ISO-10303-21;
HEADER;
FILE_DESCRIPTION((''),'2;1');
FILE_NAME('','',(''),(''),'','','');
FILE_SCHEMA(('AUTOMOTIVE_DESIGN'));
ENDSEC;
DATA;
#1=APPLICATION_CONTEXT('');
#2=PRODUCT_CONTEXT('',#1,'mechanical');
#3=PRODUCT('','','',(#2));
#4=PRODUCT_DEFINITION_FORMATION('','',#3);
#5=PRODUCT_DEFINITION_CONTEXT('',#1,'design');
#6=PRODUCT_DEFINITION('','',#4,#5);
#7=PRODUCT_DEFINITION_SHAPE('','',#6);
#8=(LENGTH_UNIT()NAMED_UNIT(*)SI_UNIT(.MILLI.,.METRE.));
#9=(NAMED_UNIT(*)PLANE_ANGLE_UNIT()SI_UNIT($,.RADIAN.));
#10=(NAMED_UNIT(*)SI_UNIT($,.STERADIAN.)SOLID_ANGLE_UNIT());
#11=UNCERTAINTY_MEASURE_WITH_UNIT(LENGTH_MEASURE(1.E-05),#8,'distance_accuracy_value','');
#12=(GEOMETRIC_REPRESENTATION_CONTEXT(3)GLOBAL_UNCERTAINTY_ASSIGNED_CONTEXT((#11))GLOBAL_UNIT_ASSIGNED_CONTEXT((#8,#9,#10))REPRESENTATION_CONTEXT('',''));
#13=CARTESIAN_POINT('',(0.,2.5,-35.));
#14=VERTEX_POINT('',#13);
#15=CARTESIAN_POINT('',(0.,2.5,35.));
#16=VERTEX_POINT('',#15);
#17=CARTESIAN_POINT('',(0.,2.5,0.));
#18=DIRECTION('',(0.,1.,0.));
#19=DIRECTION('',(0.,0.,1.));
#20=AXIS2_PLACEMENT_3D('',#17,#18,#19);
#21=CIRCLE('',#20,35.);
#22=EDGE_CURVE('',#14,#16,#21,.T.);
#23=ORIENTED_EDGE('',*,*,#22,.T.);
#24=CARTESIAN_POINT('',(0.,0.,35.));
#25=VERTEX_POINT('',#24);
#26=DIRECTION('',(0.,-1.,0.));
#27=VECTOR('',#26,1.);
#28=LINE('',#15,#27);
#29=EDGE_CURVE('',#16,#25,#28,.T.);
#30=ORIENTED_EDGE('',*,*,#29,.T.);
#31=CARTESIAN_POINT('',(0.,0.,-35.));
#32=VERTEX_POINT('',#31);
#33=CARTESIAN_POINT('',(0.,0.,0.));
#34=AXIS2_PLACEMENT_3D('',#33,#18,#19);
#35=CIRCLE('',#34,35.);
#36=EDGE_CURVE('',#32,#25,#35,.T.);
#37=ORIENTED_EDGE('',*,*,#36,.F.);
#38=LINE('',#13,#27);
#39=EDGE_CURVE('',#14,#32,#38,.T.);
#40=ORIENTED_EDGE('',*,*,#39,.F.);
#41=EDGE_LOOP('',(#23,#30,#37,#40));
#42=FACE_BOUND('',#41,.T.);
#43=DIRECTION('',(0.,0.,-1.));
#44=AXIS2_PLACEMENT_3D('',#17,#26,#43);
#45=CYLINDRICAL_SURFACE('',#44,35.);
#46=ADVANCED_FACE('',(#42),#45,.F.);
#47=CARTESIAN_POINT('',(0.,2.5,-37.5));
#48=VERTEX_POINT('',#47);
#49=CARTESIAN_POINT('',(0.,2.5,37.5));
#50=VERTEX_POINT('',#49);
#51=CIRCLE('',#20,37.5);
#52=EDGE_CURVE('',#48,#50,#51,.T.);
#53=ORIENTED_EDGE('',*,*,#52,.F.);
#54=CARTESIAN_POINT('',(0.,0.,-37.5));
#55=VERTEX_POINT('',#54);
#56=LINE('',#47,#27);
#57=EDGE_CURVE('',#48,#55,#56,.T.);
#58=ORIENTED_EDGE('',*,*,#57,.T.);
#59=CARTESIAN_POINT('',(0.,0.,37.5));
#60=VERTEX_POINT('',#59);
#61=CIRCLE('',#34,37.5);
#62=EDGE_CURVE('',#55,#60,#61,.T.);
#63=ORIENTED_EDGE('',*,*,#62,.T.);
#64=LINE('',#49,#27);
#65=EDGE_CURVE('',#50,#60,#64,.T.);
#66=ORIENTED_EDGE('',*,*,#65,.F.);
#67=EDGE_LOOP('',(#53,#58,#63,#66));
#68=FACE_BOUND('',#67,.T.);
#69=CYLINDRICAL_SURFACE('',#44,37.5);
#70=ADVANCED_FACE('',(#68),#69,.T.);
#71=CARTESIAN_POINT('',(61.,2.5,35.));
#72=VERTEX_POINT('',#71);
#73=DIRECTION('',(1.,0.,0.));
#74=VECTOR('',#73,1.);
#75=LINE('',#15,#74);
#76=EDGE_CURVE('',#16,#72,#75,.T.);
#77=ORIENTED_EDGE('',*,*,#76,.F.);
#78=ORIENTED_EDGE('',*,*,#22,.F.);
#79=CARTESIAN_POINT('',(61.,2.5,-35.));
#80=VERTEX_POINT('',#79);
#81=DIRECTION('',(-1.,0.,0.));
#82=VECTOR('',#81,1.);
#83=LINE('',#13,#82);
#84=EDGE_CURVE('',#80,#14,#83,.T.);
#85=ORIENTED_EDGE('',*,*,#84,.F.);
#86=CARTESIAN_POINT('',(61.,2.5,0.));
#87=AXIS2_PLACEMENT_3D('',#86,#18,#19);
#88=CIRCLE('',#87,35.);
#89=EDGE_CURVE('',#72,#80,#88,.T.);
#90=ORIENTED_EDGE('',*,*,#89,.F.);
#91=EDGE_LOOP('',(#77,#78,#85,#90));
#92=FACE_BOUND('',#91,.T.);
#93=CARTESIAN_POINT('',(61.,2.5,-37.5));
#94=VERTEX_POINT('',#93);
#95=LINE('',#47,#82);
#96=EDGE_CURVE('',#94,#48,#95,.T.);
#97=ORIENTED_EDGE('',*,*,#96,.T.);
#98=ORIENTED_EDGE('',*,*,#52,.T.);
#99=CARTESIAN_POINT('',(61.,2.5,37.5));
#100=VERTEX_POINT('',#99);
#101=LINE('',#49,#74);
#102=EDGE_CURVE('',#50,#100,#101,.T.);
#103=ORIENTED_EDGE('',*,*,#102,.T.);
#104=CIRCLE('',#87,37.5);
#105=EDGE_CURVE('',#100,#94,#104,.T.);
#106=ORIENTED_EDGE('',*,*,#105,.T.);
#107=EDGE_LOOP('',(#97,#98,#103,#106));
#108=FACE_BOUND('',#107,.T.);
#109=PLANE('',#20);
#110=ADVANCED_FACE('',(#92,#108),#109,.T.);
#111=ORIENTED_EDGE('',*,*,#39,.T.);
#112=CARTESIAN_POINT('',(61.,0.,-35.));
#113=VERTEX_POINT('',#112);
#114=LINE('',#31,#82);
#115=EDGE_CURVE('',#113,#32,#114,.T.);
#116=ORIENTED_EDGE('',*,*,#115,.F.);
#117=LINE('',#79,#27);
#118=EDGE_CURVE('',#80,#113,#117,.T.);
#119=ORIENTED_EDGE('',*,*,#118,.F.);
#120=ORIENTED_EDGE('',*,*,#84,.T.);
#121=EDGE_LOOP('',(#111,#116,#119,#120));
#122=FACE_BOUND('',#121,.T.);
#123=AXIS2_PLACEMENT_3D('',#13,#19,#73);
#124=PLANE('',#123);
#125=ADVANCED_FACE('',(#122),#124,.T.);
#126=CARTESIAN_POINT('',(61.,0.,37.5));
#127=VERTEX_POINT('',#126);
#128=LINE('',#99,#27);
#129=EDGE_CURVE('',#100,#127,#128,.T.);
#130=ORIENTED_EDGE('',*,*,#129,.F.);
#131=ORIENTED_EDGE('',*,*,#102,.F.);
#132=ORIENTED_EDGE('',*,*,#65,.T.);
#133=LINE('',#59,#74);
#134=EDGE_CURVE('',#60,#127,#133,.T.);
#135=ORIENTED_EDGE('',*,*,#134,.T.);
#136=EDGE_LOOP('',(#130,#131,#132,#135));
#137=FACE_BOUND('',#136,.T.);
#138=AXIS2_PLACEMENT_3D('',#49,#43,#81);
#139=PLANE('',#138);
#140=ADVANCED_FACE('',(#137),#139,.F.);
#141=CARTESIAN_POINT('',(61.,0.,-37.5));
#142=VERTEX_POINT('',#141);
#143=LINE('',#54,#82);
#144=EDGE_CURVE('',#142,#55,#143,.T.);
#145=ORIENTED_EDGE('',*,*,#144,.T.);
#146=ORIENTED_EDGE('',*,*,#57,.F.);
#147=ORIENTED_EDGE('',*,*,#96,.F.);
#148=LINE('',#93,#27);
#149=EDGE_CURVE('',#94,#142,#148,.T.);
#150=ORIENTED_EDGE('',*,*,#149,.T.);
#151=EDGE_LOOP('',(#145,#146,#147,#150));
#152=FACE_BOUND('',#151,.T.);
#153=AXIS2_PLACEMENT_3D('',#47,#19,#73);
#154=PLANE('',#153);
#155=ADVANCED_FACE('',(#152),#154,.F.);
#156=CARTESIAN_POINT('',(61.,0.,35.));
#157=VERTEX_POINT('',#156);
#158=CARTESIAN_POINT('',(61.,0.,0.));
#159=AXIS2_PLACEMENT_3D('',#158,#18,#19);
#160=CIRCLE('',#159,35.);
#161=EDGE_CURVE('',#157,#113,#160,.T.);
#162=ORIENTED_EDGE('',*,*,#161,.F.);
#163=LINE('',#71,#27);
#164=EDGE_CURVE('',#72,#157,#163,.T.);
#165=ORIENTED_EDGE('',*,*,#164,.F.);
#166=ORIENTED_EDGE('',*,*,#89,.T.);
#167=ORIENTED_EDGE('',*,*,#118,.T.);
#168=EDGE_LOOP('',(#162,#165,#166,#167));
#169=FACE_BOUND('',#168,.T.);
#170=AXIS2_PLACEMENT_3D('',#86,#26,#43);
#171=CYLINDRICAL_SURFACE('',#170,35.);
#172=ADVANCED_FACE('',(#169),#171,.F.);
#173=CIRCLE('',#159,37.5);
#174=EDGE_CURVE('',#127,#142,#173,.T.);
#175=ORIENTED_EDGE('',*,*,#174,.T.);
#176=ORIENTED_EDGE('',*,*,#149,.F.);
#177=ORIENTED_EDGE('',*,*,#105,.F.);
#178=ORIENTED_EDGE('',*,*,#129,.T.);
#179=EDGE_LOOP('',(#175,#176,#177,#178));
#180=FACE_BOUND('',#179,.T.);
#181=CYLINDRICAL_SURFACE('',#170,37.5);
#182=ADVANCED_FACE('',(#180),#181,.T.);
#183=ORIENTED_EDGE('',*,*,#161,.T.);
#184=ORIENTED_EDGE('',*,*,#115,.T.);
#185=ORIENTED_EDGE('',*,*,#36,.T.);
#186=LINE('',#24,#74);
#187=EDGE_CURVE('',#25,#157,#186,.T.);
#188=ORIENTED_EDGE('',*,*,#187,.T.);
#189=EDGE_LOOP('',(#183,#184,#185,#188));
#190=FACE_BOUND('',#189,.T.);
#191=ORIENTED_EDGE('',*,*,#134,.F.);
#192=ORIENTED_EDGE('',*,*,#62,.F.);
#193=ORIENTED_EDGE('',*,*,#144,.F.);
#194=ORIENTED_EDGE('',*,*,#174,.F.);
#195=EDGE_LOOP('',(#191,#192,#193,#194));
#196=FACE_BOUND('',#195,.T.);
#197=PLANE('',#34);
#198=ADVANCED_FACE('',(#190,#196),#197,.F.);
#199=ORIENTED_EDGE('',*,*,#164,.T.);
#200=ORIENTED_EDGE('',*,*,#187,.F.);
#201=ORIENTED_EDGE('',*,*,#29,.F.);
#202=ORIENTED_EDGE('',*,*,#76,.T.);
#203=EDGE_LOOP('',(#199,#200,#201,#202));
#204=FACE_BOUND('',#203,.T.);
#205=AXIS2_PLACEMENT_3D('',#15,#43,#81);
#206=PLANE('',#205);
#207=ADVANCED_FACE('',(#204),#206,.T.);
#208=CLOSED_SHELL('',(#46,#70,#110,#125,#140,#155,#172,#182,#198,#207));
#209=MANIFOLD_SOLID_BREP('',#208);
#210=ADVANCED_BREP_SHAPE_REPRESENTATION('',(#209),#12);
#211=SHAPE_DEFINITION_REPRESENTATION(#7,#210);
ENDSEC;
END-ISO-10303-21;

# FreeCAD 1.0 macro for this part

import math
import FreeCAD as App
import Part
import Sketcher
from FreeCAD import Vector

doc = App.newDocument("Part")
body = doc.addObject("PartDesign::Body", "Body")

# Sketch on XZ plane
sketch1 = body.newObject("Sketcher::SketchObject", "Sketch")
sketch1.AttachmentSupport = (doc.getObject("XZ_Plane"), [""])
sketch1.MapMode = "FlatFace"
sketch1.addGeometry(Part.LineSegment(Vector(61, -38, 0), Vector(0, -38, 0)), False)
sketch1.addGeometry(Part.ArcOfCircle(Part.Circle(Vector(0, 0, 0), Vector(0, 0, 1), 38), math.radians(90), math.radians(270)), False)
sketch1.addGeometry(Part.LineSegment(Vector(0, 38, 0), Vector(61, 38, 0)), False)
sketch1.addGeometry(Part.ArcOfCircle(Part.Circle(Vector(61, 0, 0), Vector(0, 0, 1), 38), math.radians(-90), math.radians(90)), False)
sketch1.addGeometry(Part.LineSegment(Vector(0, -35, 0), Vector(61, -35, 0)), False)
sketch1.addGeometry(Part.ArcOfCircle(Part.Circle(Vector(61, 0, 0), Vector(0, 0, 1), 35), math.radians(-90), math.radians(90)), False)
sketch1.addGeometry(Part.LineSegment(Vector(61, 35, 0), Vector(0, 35, 0)), False)
sketch1.addGeometry(Part.ArcOfCircle(Part.Circle(Vector(0, 0, 0), Vector(0, 0, 1), 35), math.radians(90), math.radians(270)), False)
sketch1.addConstraint(Sketcher.Constraint("Tangent", 0, 2, 1, 2))
sketch1.addConstraint(Sketcher.Constraint("Tangent", 1, 1, 2, 1))
sketch1.addConstraint(Sketcher.Constraint("Tangent", 2, 2, 3, 2))
sketch1.addConstraint(Sketcher.Constraint("Tangent", 3, 1, 0, 1))
sketch1.addConstraint(Sketcher.Constraint("Tangent", 4, 2, 5, 1))
sketch1.addConstraint(Sketcher.Constraint("Tangent", 5, 2, 6, 1))
sketch1.addConstraint(Sketcher.Constraint("Tangent", 6, 2, 7, 1))
sketch1.addConstraint(Sketcher.Constraint("Tangent", 7, 2, 4, 1))
sketch1.addConstraint(Sketcher.Constraint("Horizontal", 0))
sketch1.addConstraint(Sketcher.Constraint("Horizontal", 2))
sketch1.addConstraint(Sketcher.Constraint("Horizontal", 4))
sketch1.addConstraint(Sketcher.Constraint("Horizontal", 6))
sketch1.addConstraint(Sketcher.Constraint("Coincident", 1, 3, -1, 1))
sketch1.addConstraint(Sketcher.Constraint("Coincident", 7, 3, -1, 1))
sketch1.addConstraint(Sketcher.Constraint("Vertical", 5, 3, 2, 2))
sketch1.addConstraint(Sketcher.Constraint("Radius", 5, 35.0))
sketch1.addConstraint(Sketcher.Constraint("Radius", 1, 37.5))
sketch1.addConstraint(Sketcher.Constraint("DistanceX", 0, 2, 0, 1, 61.0))
pad1 = body.newObject("PartDesign::Pad", "Pad")
pad1.Profile = sketch1
pad1.Length = 2.5
pad1.Reversed = True

doc.recompute()
